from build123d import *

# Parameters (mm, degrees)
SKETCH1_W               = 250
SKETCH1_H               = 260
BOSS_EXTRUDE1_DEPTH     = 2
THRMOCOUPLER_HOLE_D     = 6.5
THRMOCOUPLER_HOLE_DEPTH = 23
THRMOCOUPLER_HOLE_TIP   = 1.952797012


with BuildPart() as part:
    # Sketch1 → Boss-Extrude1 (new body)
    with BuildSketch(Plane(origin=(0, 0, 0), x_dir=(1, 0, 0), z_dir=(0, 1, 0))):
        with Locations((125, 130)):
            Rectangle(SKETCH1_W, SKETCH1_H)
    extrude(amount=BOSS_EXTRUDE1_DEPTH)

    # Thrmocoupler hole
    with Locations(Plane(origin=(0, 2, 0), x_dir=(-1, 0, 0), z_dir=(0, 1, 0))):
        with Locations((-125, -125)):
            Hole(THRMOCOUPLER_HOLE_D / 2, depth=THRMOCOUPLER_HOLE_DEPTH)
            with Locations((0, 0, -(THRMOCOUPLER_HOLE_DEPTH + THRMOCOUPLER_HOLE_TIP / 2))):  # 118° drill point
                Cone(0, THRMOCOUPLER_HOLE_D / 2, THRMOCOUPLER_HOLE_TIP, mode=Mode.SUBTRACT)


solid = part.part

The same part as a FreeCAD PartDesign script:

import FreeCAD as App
import Part
import Sketcher
from FreeCAD import Vector
Q = App.Units.Quantity

doc = App.newDocument("Part")
params = doc.addObject("Spreadsheet::Sheet", "Params")
for row, (alias, value) in enumerate([
    ("sketch1_width", "250 mm"),
    ("sketch1_height", "260 mm"),
    ("pad1_length", "2 mm"),
    ("sketch2_diameter", "6.5 mm"),
    ("hole_diameter", "6.5 mm"),
    ("hole_depth", "23 mm"),
], start=1):
    params.set(f"A{row}", alias)
    params.set(f"B{row}", "=" + value)
    params.setAlias(f"B{row}", alias)

body = doc.addObject("PartDesign::Body", "Body")

# Sketch on XZ plane
sketch1 = doc.addObject("Sketcher::SketchObject", "Sketch")
body.addObject(sketch1)
sketch1.AttachmentSupport = (doc.XZ_Plane, [""])
sketch1.MapMode = "FlatFace"
sketch1.addGeometry(Part.LineSegment(Vector(0, -260, 0), Vector(0, 0, 0)), False)
sketch1.addGeometry(Part.LineSegment(Vector(0, 0, 0), Vector(250, 0, 0)), False)
sketch1.addGeometry(Part.LineSegment(Vector(250, 0, 0), Vector(250, -260, 0)), False)
sketch1.addGeometry(Part.LineSegment(Vector(250, -260, 0), Vector(0, -260, 0)), False)
sketch1.addConstraint(Sketcher.Constraint("Coincident", 0, 2, 1, 1))
sketch1.addConstraint(Sketcher.Constraint("Coincident", 1, 2, 2, 1))
sketch1.addConstraint(Sketcher.Constraint("Coincident", 2, 2, 3, 1))
sketch1.addConstraint(Sketcher.Constraint("Coincident", 3, 2, 0, 1))
sketch1.addConstraint(Sketcher.Constraint("Vertical", 0))
sketch1.addConstraint(Sketcher.Constraint("Horizontal", 1))
sketch1.addConstraint(Sketcher.Constraint("Vertical", 2))
sketch1.addConstraint(Sketcher.Constraint("Horizontal", 3))
sketch1.addConstraint(Sketcher.Constraint("Coincident", 0, 2, -1, 1))
sketch1.addConstraint(Sketcher.Constraint("DistanceX", 1, 1, 1, 2, Q("250 mm")))
sketch1.addConstraint(Sketcher.Constraint("DistanceY", 0, 1, 0, 2, Q("260 mm")))
sketch1.setExpression("Constraints[9]", "Params.sketch1_width")
sketch1.setExpression("Constraints[10]", "Params.sketch1_height")
pad1 = doc.addObject("PartDesign::Pad", "Pad")
body.addObject(pad1)
pad1.Profile = sketch1
pad1.setExpression("Length", "Params.pad1_length")
pad1.Reversed = True

# Sketch on XZ plane
sketch2 = doc.addObject("Sketcher::SketchObject", "Sketch001")
body.addObject(sketch2)
sketch2.AttachmentSupport = (doc.XZ_Plane, [""])
sketch2.MapMode = "FlatFace"
sketch2.AttachmentOffset = App.Placement(Vector(0, 0, -2), App.Rotation())
sketch2.addGeometry(Part.Circle(Vector(125, -125, 0), Vector(0, 0, 1), 3.25), False)
sketch2.addConstraint(Sketcher.Constraint("Diameter", 0, Q("6.5 mm")))
sketch2.addConstraint(Sketcher.Constraint("DistanceX", -1, 1, 0, 3, Q("125 mm")))
sketch2.addConstraint(Sketcher.Constraint("DistanceY", 0, 3, -1, 1, Q("125 mm")))
sketch2.setExpression("Constraints[0]", "Params.sketch2_diameter")
doc.recompute()
hole = doc.addObject("PartDesign::Hole", "Hole")
body.addObject(hole)
hole.Profile = sketch2
hole.ThreadType = "None"
hole.setExpression("Diameter", "Params.hole_diameter")
hole.DepthType = "Dimension"
hole.setExpression("Depth", "Params.hole_depth")
hole.DrillPoint = "Angled"
hole.DrillPointAngle = 118
hole.Reversed = True

doc.recompute()
